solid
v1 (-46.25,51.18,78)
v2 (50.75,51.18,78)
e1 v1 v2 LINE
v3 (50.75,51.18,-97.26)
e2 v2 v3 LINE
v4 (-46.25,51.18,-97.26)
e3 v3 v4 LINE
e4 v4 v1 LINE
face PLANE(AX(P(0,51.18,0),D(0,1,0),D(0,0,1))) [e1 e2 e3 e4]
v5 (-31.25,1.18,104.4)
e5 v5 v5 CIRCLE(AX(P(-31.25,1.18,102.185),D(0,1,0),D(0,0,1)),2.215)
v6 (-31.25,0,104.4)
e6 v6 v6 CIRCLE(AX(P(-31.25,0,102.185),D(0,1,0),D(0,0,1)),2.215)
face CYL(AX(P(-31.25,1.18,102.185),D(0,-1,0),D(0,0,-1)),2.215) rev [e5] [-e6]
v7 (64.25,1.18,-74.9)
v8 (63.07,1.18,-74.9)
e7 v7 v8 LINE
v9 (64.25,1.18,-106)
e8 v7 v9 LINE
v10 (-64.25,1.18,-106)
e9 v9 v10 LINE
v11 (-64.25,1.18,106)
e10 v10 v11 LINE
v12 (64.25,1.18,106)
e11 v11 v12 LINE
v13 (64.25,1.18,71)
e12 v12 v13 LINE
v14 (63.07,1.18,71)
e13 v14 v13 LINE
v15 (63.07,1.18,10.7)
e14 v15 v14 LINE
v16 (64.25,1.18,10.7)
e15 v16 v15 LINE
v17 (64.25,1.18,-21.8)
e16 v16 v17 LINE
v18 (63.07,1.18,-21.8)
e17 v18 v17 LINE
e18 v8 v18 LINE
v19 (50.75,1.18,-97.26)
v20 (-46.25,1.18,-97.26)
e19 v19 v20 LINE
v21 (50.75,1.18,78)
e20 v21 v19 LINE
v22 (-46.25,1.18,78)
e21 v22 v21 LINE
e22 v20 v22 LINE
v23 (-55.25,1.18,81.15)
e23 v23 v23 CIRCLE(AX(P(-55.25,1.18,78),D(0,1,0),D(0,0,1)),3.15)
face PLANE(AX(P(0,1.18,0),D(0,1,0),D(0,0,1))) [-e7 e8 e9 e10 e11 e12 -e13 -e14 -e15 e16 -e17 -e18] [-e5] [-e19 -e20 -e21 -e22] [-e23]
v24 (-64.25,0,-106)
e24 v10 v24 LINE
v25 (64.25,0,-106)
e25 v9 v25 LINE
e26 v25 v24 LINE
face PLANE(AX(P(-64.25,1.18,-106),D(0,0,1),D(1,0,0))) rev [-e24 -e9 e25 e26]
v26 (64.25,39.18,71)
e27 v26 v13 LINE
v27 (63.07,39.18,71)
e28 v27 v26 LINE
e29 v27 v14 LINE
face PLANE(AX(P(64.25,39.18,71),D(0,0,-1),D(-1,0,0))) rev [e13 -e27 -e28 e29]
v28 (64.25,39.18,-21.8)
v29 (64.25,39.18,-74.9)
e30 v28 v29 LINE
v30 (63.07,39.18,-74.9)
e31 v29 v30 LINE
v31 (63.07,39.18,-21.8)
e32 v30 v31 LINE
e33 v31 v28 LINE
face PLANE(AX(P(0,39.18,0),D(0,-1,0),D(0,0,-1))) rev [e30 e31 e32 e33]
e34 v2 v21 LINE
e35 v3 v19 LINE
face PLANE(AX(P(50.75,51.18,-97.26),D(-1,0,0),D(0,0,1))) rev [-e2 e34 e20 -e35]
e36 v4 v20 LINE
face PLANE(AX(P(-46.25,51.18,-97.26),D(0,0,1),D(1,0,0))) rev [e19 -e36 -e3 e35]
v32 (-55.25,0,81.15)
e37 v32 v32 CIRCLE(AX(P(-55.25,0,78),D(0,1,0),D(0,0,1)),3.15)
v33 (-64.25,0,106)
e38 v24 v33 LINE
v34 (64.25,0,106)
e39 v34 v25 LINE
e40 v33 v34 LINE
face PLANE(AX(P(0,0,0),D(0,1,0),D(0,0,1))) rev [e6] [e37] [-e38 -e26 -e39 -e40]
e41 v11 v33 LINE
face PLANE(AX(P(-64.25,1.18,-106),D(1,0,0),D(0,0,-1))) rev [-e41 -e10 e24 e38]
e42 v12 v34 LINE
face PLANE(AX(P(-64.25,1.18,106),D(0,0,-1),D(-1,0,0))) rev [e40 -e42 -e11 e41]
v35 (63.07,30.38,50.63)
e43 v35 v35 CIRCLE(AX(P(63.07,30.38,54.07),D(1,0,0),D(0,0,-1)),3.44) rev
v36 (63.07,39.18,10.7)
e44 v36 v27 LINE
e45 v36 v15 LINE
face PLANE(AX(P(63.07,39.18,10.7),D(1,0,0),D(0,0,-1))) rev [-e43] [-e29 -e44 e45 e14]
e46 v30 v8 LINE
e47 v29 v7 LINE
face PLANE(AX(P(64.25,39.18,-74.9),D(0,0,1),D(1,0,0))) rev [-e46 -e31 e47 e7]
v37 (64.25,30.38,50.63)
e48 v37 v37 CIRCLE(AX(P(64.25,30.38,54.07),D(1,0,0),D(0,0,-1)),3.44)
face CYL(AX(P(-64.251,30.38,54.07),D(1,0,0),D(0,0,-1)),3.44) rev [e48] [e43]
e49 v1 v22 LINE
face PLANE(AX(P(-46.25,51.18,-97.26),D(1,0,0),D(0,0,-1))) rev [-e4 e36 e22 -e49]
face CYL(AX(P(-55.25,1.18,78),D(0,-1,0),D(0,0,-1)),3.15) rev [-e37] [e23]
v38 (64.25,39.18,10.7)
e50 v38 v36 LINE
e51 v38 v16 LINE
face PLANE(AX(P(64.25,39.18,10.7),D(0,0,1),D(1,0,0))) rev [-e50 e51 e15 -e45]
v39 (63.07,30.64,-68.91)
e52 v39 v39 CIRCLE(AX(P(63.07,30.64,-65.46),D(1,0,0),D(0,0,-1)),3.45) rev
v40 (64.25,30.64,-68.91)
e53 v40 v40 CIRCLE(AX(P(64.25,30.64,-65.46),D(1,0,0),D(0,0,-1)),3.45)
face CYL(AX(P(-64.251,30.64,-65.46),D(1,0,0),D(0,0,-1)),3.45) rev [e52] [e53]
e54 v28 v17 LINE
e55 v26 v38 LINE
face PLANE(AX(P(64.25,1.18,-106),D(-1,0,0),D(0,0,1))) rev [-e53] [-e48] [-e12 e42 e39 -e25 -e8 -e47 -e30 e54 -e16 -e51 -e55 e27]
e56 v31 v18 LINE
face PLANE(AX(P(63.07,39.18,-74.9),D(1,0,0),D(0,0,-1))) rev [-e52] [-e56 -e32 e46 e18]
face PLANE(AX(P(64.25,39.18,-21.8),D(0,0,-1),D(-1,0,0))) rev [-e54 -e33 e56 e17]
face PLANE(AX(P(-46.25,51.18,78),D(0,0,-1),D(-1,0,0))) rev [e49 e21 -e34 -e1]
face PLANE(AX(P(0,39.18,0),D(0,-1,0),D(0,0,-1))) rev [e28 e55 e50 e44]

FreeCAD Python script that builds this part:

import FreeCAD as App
import Part
import Sketcher

doc = App.newDocument("Part")
body = doc.addObject("PartDesign::Body", "Body")

# Sketch on XZ plane
sketch1 = body.newObject("Sketcher::SketchObject", "Sketch")
sketch1.AttachmentSupport = (doc.getObject("XZ_Plane"), [""])
sketch1.MapMode = "FlatFace"
sketch1.addGeometry([
    Part.LineSegment(App.Vector(-64.2, -106, 0), App.Vector(-64.2, 106, 0)),  # 0
    Part.LineSegment(App.Vector(-64.2, 106, 0), App.Vector(64.2, 106, 0)),  # 1
    Part.LineSegment(App.Vector(64.2, 106, 0), App.Vector(64.2, -106, 0)),  # 2
    Part.LineSegment(App.Vector(64.2, -106, 0), App.Vector(-64.2, -106, 0)),  # 3
    Part.Circle(App.Vector(-31.2, 102.2, 0), App.Vector(0, 0, 1), 2.2),  # 4
    Part.Circle(App.Vector(-55.2, 78, 0), App.Vector(0, 0, 1), 3.1),  # 5
], False)
sketch1.addConstraint([
    Sketcher.Constraint("Coincident", 0, 2, 1, 1),
    Sketcher.Constraint("Coincident", 1, 2, 2, 1),
    Sketcher.Constraint("Coincident", 2, 2, 3, 1),
    Sketcher.Constraint("Coincident", 3, 2, 0, 1),
    Sketcher.Constraint("Vertical", 0),
    Sketcher.Constraint("Horizontal", 1),
    Sketcher.Constraint("Vertical", 2),
    Sketcher.Constraint("Horizontal", 3),
    Sketcher.Constraint("Symmetric", 0, 2, 2, 2, -1, 1),
    Sketcher.Constraint("Diameter", 5, 6.3),
    Sketcher.Constraint("Diameter", 4, 4.43),
    Sketcher.Constraint("DistanceY", 0, 1, 0, 2, 212.0),
    Sketcher.Constraint("DistanceX", 1, 1, 1, 2, 128.5),
    Sketcher.Constraint("DistanceY", -1, 1, 5, 3, 78.0),
    Sketcher.Constraint("DistanceX", 5, 3, 4, 3, 24.0),
    Sketcher.Constraint("DistanceX", 0, 2, 5, 3, 9.0),
    Sketcher.Constraint("DistanceY", -1, 1, 4, 3, 102.185),
])
pad1 = body.newObject("PartDesign::Pad", "Pad")
pad1.Profile = sketch1
pad1.Length = 1.18
pad1.Reversed = True

# Sketch on XZ plane
sketch2 = body.newObject("Sketcher::SketchObject", "Sketch001")
sketch2.AttachmentSupport = (doc.getObject("XZ_Plane"), [""])
sketch2.MapMode = "FlatFace"
sketch2.AttachmentOffset = App.Placement(App.Vector(0, 0, -1.18), App.Rotation())
sketch2.addGeometry([
    Part.LineSegment(App.Vector(-46, -97, 0), App.Vector(-46, 78, 0)),
    Part.LineSegment(App.Vector(-46, 78, 0), App.Vector(51, 78, 0)),
    Part.LineSegment(App.Vector(51, 78, 0), App.Vector(51, -97, 0)),
    Part.LineSegment(App.Vector(51, -97, 0), App.Vector(-46, -97, 0)),
], False)
sketch2.addConstraint([
    Sketcher.Constraint("Coincident", 0, 2, 1, 1),
    Sketcher.Constraint("Coincident", 1, 2, 2, 1),
    Sketcher.Constraint("Coincident", 2, 2, 3, 1),
    Sketcher.Constraint("Coincident", 3, 2, 0, 1),
    Sketcher.Constraint("Vertical", 0),
    Sketcher.Constraint("Horizontal", 1),
    Sketcher.Constraint("Vertical", 2),
    Sketcher.Constraint("Horizontal", 3),
    Sketcher.Constraint("DistanceX", 1, 1, 1, 2, 97.0),
    Sketcher.Constraint("DistanceY", -1, 1, 0, 2, 78.0),
    Sketcher.Constraint("DistanceY", 0, 1, 0, 2, 175.26),
    Sketcher.Constraint("DistanceX", 0, 2, -1, 1, 46.25),
])
pad2 = body.newObject("PartDesign::Pad", "Pad001")
pad2.Profile = sketch2
pad2.Length = 50
pad2.Reversed = True

# Sketch on XZ plane
sketch3 = body.newObject("Sketcher::SketchObject", "Sketch002")
sketch3.AttachmentSupport = (doc.getObject("XZ_Plane"), [""])
sketch3.MapMode = "FlatFace"
sketch3.AttachmentOffset = App.Placement(App.Vector(0, 0, -1.18), App.Rotation())
sketch3.addGeometry([
    Part.LineSegment(App.Vector(63.1, 10.7, 0), App.Vector(63.1, 71, 0)),  # 0
    Part.LineSegment(App.Vector(63.1, 71, 0), App.Vector(64.2, 71, 0)),  # 1
    Part.LineSegment(App.Vector(64.2, 71, 0), App.Vector(64.2, 10.7, 0)),  # 2
    Part.LineSegment(App.Vector(64.2, 10.7, 0), App.Vector(63.1, 10.7, 0)),  # 3
    Part.LineSegment(App.Vector(63.1, -74.9, 0), App.Vector(63.1, -21.8, 0)),  # 4
    Part.LineSegment(App.Vector(63.1, -21.8, 0), App.Vector(64.2, -21.8, 0)),  # 5
    Part.LineSegment(App.Vector(64.2, -21.8, 0), App.Vector(64.2, -74.9, 0)),  # 6
    Part.LineSegment(App.Vector(64.2, -74.9, 0), App.Vector(63.1, -74.9, 0)),  # 7
], False)
sketch3.addConstraint([
    Sketcher.Constraint("Coincident", 0, 2, 1, 1),
    Sketcher.Constraint("Coincident", 1, 2, 2, 1),
    Sketcher.Constraint("Coincident", 2, 2, 3, 1),
    Sketcher.Constraint("Coincident", 3, 2, 0, 1),
    Sketcher.Constraint("Coincident", 4, 2, 5, 1),
    Sketcher.Constraint("Coincident", 5, 2, 6, 1),
    Sketcher.Constraint("Coincident", 6, 2, 7, 1),
    Sketcher.Constraint("Coincident", 7, 2, 4, 1),
    Sketcher.Constraint("Vertical", 0),
    Sketcher.Constraint("Horizontal", 1),
    Sketcher.Constraint("Vertical", 2),
    Sketcher.Constraint("Horizontal", 3),
    Sketcher.Constraint("Vertical", 4),
    Sketcher.Constraint("Horizontal", 5),
    Sketcher.Constraint("Vertical", 6),
    Sketcher.Constraint("Horizontal", 7),
    Sketcher.Constraint("Vertical", 3, 2, 4, 2),
    Sketcher.Constraint("Vertical", 2, 2, 5, 2),
    Sketcher.Constraint("DistanceY", 0, 1, 0, 2, 60.3),
    Sketcher.Constraint("DistanceY", 4, 1, 4, 2, 53.1),
    Sketcher.Constraint("DistanceY", -1, 1, 0, 2, 71.0),
    Sketcher.Constraint("DistanceX", 1, 1, 1, 2, 1.18),
    Sketcher.Constraint("DistanceY", 4, 2, -1, 1, 21.8),
    Sketcher.Constraint("DistanceX", -1, 1, 0, 2, 63.07),
])
pad3 = body.newObject("PartDesign::Pad", "Pad002")
pad3.Profile = sketch3
pad3.Length = 38
pad3.Reversed = True

# Sketch on YZ plane
sketch4 = body.newObject("Sketcher::SketchObject", "Sketch003")
sketch4.AttachmentSupport = (doc.getObject("YZ_Plane"), [""])
sketch4.MapMode = "FlatFace"
sketch4.AttachmentOffset = App.Placement(App.Vector(0, 0, 64.25), App.Rotation())
sketch4.addGeometry(Part.Circle(App.Vector(30.4, 54.1, 0), App.Vector(0, 0, 1), 3.4), False)
sketch4.addConstraint([
    Sketcher.Constraint("Diameter", 0, 6.88),
    Sketcher.Constraint("DistanceX", -1, 1, 0, 3, 30.38),
    Sketcher.Constraint("DistanceY", -1, 1, 0, 3, 54.07),
])
pocket1 = body.newObject("PartDesign::Pocket", "Pocket")
pocket1.Profile = sketch4
pocket1.Type = "UpToFirst"

# Sketch on YZ plane
sketch5 = body.newObject("Sketcher::SketchObject", "Sketch004")
sketch5.AttachmentSupport = (doc.getObject("YZ_Plane"), [""])
sketch5.MapMode = "FlatFace"
sketch5.AttachmentOffset = App.Placement(App.Vector(0, 0, 64.25), App.Rotation())
sketch5.addGeometry(Part.Circle(App.Vector(30.6, -65.5, 0), App.Vector(0, 0, 1), 3.5), False)
sketch5.addConstraint([
    Sketcher.Constraint("Diameter", 0, 6.9),
    Sketcher.Constraint("DistanceX", -1, 1, 0, 3, 30.64),
    Sketcher.Constraint("DistanceY", 0, 3, -1, 1, 65.46),
])
pocket2 = body.newObject("PartDesign::Pocket", "Pocket001")
pocket2.Profile = sketch5
pocket2.Type = "UpToFirst"

doc.recompute()
